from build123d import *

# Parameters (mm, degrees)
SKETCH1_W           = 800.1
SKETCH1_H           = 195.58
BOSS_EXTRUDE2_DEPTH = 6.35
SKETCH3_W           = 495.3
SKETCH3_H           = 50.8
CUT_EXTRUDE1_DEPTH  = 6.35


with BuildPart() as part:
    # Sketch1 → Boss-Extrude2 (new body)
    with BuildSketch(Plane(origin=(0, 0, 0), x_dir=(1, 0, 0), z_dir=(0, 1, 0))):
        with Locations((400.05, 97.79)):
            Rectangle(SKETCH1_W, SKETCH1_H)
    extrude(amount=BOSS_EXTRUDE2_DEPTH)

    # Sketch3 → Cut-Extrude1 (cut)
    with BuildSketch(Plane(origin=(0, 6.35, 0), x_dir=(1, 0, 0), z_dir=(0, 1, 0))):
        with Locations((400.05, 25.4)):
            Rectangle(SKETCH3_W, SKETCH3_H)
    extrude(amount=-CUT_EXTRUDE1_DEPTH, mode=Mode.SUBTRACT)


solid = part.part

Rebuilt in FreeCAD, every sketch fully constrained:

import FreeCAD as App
import Part
import Sketcher
from FreeCAD import Vector
Q = App.Units.Quantity


def add_polygon(sketch, points):
    """Adds a closed chain of lines whose ends are joined by coincident constraints."""
    first, n = sketch.GeometryCount, len(points)
    for a, b in zip(points, points[1:] + points[:1]):
        sketch.addGeometry(Part.LineSegment(App.Vector(*a, 0), App.Vector(*b, 0)), False)
    for i in range(n):
        sketch.addConstraint(Sketcher.Constraint("Coincident", first + i, 2, first + (i + 1) % n, 1))

doc = App.newDocument("Part")
params = doc.addObject("Spreadsheet::Sheet", "Params")
for row, (alias, value) in enumerate([
    ("sketch1_width", "31.5 in"),
    ("sketch1_height", "7.7 in"),
    ("pad1_length", "0.25 in"),
    ("sketch2_height", "2 in"),
    ("sketch2_width", "19.5 in"),
    ("pocket1_length", "0.25 in"),
], start=1):
    params.set(f"A{row}", alias)
    params.set(f"B{row}", "=" + value)
    params.setAlias(f"B{row}", alias)

body = doc.addObject("PartDesign::Body", "Body")

# Sketch on XZ plane
sketch1 = body.newObject("Sketcher::SketchObject", "Sketch")
sketch1.AttachmentSupport = (doc.getObject("XZ_Plane"), [""])
sketch1.MapMode = "FlatFace"
add_polygon(sketch1, [(0, -196), (0, 0), (800, 0), (800, -196)])  # lines 0-3
sketch1.addConstraint([
    Sketcher.Constraint("Vertical", 0),
    Sketcher.Constraint("Horizontal", 1),
    Sketcher.Constraint("Vertical", 2),
    Sketcher.Constraint("Horizontal", 3),
    Sketcher.Constraint("Coincident", 0, 2, -1, 1),
    Sketcher.Constraint("DistanceX", 1, 1, 1, 2, Q("31.5 in")),
    Sketcher.Constraint("DistanceY", 0, 1, 0, 2, Q("7.7 in")),
])
sketch1.setExpression("Constraints[9]", "Params.sketch1_width")
sketch1.setExpression("Constraints[10]", "Params.sketch1_height")
pad1 = body.newObject("PartDesign::Pad", "Pad")
pad1.Profile = sketch1
pad1.setExpression("Length", "Params.pad1_length")
pad1.Reversed = True

# Sketch on XZ plane
sketch2 = body.newObject("Sketcher::SketchObject", "Sketch001")
sketch2.AttachmentSupport = (doc.getObject("XZ_Plane"), [""])
sketch2.MapMode = "FlatFace"
sketch2.AttachmentOffset = App.Placement(Vector(0, 0, -0.25 * 25.4), App.Rotation())
add_polygon(sketch2, [(152, -51), (152, 0), (648, 0), (648, -51)])  # lines 0-3
sketch2.addConstraint([
    Sketcher.Constraint("Vertical", 0),
    Sketcher.Constraint("Horizontal", 1),
    Sketcher.Constraint("Vertical", 2),
    Sketcher.Constraint("Horizontal", 3),
    Sketcher.Constraint("PointOnObject", 0, 2, -1),
    Sketcher.Constraint("DistanceY", 0, 1, 0, 2, Q("2 in")),
    Sketcher.Constraint("DistanceX", 1, 1, 1, 2, Q("19.5 in")),
    Sketcher.Constraint("DistanceX", -1, 1, 0, 2, Q("6 in")),
])
sketch2.setExpression("Constraints[9]", "Params.sketch2_height")
sketch2.setExpression("Constraints[10]", "Params.sketch2_width")
pocket1 = body.newObject("PartDesign::Pocket", "Pocket")
pocket1.Profile = sketch2
pocket1.setExpression("Length", "Params.pocket1_length")
pocket1.Reversed = True

doc.recompute()
